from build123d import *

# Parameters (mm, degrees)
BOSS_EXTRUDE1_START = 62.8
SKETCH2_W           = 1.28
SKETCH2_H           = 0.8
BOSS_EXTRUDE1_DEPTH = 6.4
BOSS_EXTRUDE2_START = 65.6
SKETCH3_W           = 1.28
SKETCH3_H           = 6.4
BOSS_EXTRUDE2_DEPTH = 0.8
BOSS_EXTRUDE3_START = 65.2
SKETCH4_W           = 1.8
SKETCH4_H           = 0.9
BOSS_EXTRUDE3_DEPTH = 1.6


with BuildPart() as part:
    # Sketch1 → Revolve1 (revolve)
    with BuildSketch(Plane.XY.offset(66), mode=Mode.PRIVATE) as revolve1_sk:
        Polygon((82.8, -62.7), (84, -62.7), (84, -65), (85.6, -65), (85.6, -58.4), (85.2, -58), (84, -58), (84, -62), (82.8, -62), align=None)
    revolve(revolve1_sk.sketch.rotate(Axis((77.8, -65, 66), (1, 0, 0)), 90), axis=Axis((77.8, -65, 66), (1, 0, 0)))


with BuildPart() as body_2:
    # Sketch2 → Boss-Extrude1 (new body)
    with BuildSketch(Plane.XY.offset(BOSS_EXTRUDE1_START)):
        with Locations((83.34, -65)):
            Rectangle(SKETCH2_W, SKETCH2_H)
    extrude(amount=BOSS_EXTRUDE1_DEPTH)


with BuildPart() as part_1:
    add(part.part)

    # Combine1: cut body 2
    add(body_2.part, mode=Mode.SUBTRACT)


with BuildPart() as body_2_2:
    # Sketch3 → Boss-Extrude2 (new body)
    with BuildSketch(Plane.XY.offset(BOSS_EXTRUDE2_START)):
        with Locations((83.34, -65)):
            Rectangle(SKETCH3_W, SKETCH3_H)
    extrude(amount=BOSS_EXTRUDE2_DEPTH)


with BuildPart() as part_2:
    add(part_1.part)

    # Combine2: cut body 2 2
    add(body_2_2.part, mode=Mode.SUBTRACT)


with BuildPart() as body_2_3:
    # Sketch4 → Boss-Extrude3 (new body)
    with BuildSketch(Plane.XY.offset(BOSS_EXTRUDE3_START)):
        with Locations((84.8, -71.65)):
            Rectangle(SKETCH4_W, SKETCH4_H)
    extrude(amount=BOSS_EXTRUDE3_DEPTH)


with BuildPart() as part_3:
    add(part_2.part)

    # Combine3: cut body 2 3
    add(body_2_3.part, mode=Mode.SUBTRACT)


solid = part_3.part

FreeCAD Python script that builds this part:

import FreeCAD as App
import Part
import Sketcher
from FreeCAD import Vector
Q = App.Units.Quantity

doc = App.newDocument("Part")
body = doc.addObject("PartDesign::Body", "Body")

# Sketch on XY plane
sketch1 = body.newObject("Sketcher::SketchObject", "Sketch")
sketch1.AttachmentSupport = (doc.getObject("XY_Plane"), [""])
sketch1.MapMode = "FlatFace"
sketch1.AttachmentOffset = App.Placement(Vector(0, 0, 66), App.Rotation())
sketch1.addGeometry([
    Part.LineSegment(Vector(82.8, -62.7, 0), Vector(84, -62.7, 0)),  # 0
    Part.LineSegment(Vector(84, -62.7, 0), Vector(84, -65, 0)),  # 1
    Part.LineSegment(Vector(84, -65, 0), Vector(85.6, -65, 0)),  # 2
    Part.LineSegment(Vector(85.6, -65, 0), Vector(85.6, -58.4, 0)),  # 3
    Part.LineSegment(Vector(85.6, -58.4, 0), Vector(85.2, -58, 0)),  # 4
    Part.LineSegment(Vector(85.2, -58, 0), Vector(84, -58, 0)),  # 5
    Part.LineSegment(Vector(84, -58, 0), Vector(84, -62, 0)),  # 6
    Part.LineSegment(Vector(84, -62, 0), Vector(82.8, -62, 0)),  # 7
    Part.LineSegment(Vector(82.8, -62, 0), Vector(82.8, -62.7, 0)),  # 8
], False)
sketch1.addGeometry(Part.LineSegment(Vector(82.8, -65, 0), Vector(85.6, -65, 0)), True)  # axis
sketch1.addConstraint([
    Sketcher.Constraint("Coincident", 0, 2, 1, 1),
    Sketcher.Constraint("Coincident", 1, 2, 2, 1),
    Sketcher.Constraint("Coincident", 2, 2, 3, 1),
    Sketcher.Constraint("Coincident", 3, 2, 4, 1),
    Sketcher.Constraint("Coincident", 4, 2, 5, 1),
    Sketcher.Constraint("Coincident", 5, 2, 6, 1),
    Sketcher.Constraint("Coincident", 6, 2, 7, 1),
    Sketcher.Constraint("Coincident", 7, 2, 8, 1),
    Sketcher.Constraint("Coincident", 8, 2, 0, 1),
    Sketcher.Constraint("Horizontal", 0),
    Sketcher.Constraint("Vertical", 1),
    Sketcher.Constraint("Horizontal", 2),
    Sketcher.Constraint("Vertical", 3),
    Sketcher.Constraint("Horizontal", 5),
    Sketcher.Constraint("Vertical", 6),
    Sketcher.Constraint("Horizontal", 7),
    Sketcher.Constraint("Vertical", 8),
    Sketcher.Constraint("Horizontal", 9),
    Sketcher.Constraint("Coincident", 9, 2, 2, 2),
    Sketcher.Constraint("Vertical", 1, 2, 5, 2),
    Sketcher.Constraint("Vertical", 8, 2, 9, 1),
    Sketcher.Constraint("Equal", 0, 5),
    Sketcher.Constraint("DistanceY", 6, 2, 6, 1, 4.0),
    Sketcher.Constraint("Angle", 4, Q("135 deg")),
    Sketcher.Constraint("DistanceX", 0, 1, 0, 2, 1.2),
    Sketcher.Constraint("DistanceX", 2, 1, 2, 2, 1.6),
    Sketcher.Constraint("DistanceY", 1, 2, 1, 1, 2.3),
    Sketcher.Constraint("DistanceY", 3, 1, 3, 2, 6.6),
    Sketcher.Constraint("DistanceX", -1, 1, 0, 2, 84.0),
    Sketcher.Constraint("DistanceY", 1, 2, -1, 1, 65.0),
])
revolution = body.newObject("PartDesign::Revolution", "Revolution")
revolution.Profile = sketch1
revolution.ReferenceAxis = (sketch1, ["Axis0"])
revolution.Angle = 360
body2 = doc.addObject("PartDesign::Body", "Body001")

# Sketch on XY plane
sketch2 = body2.newObject("Sketcher::SketchObject", "Sketch001")
sketch2.AttachmentSupport = (doc.getObject("XY_Plane001"), [""])
sketch2.MapMode = "FlatFace"
sketch2.AttachmentOffset = App.Placement(Vector(0, 0, 62.8), App.Rotation())
sketch2.addGeometry([
    Part.LineSegment(Vector(82.7, -64.6, 0), Vector(82.7, -65.4, 0)),
    Part.LineSegment(Vector(82.7, -65.4, 0), Vector(84, -65.4, 0)),
    Part.LineSegment(Vector(84, -65.4, 0), Vector(84, -64.6, 0)),
    Part.LineSegment(Vector(84, -64.6, 0), Vector(82.7, -64.6, 0)),
], False)
sketch2.addConstraint([
    Sketcher.Constraint("Coincident", 0, 2, 1, 1),
    Sketcher.Constraint("Coincident", 1, 2, 2, 1),
    Sketcher.Constraint("Coincident", 2, 2, 3, 1),
    Sketcher.Constraint("Coincident", 3, 2, 0, 1),
    Sketcher.Constraint("Vertical", 0),
    Sketcher.Constraint("Horizontal", 1),
    Sketcher.Constraint("Vertical", 2),
    Sketcher.Constraint("Horizontal", 3),
    Sketcher.Constraint("DistanceY", 0, 2, 0, 1, 0.8),
    Sketcher.Constraint("DistanceX", 1, 1, 1, 2, 1.28),
    Sketcher.Constraint("DistanceX", -1, 1, 0, 2, 82.7),
    Sketcher.Constraint("DistanceY", 0, 2, -1, 1, 65.4),
])
pad1 = body2.newObject("PartDesign::Pad", "Pad")
pad1.Profile = sketch2
pad1.Length = 6.4
doc.recompute()

boolean = body.newObject("PartDesign::Boolean", "Boolean")
boolean.Type = "Cut"
boolean.addObjects([body2])
body3 = doc.addObject("PartDesign::Body", "Body002")

# Sketch on XY plane
sketch3 = body3.newObject("Sketcher::SketchObject", "Sketch002")
sketch3.AttachmentSupport = (doc.getObject("XY_Plane002"), [""])
sketch3.MapMode = "FlatFace"
sketch3.AttachmentOffset = App.Placement(Vector(0, 0, 65.6), App.Rotation())
sketch3.addGeometry([
    Part.LineSegment(Vector(82.7, -61.8, 0), Vector(82.7, -68.2, 0)),
    Part.LineSegment(Vector(82.7, -68.2, 0), Vector(84, -68.2, 0)),
    Part.LineSegment(Vector(84, -68.2, 0), Vector(84, -61.8, 0)),
    Part.LineSegment(Vector(84, -61.8, 0), Vector(82.7, -61.8, 0)),
], False)
sketch3.addConstraint([
    Sketcher.Constraint("Coincident", 0, 2, 1, 1),
    Sketcher.Constraint("Coincident", 1, 2, 2, 1),
    Sketcher.Constraint("Coincident", 2, 2, 3, 1),
    Sketcher.Constraint("Coincident", 3, 2, 0, 1),
    Sketcher.Constraint("Vertical", 0),
    Sketcher.Constraint("Horizontal", 1),
    Sketcher.Constraint("Vertical", 2),
    Sketcher.Constraint("Horizontal", 3),
    Sketcher.Constraint("DistanceY", 0, 2, 0, 1, 6.4),
    Sketcher.Constraint("DistanceX", 1, 1, 1, 2, 1.28),
    Sketcher.Constraint("DistanceX", -1, 1, 0, 2, 82.7),
    Sketcher.Constraint("DistanceY", 0, 2, -1, 1, 68.2),
])
pad2 = body3.newObject("PartDesign::Pad", "Pad001")
pad2.Profile = sketch3
pad2.Length = 0.8
doc.recompute()

boolean2 = body.newObject("PartDesign::Boolean", "Boolean001")
boolean2.Type = "Cut"
boolean2.addObjects([body3])
body4 = doc.addObject("PartDesign::Body", "Body003")

# Sketch on XY plane
sketch4 = body4.newObject("Sketcher::SketchObject", "Sketch003")
sketch4.AttachmentSupport = (doc.getObject("XY_Plane003"), [""])
sketch4.MapMode = "FlatFace"
sketch4.AttachmentOffset = App.Placement(Vector(0, 0, 65.2), App.Rotation())
sketch4.addGeometry([
    Part.LineSegment(Vector(83.9, -71.2, 0), Vector(83.9, -72.1, 0)),
    Part.LineSegment(Vector(83.9, -72.1, 0), Vector(85.7, -72.1, 0)),
    Part.LineSegment(Vector(85.7, -72.1, 0), Vector(85.7, -71.2, 0)),
    Part.LineSegment(Vector(85.7, -71.2, 0), Vector(83.9, -71.2, 0)),
], False)
sketch4.addConstraint([
    Sketcher.Constraint("Coincident", 0, 2, 1, 1),
    Sketcher.Constraint("Coincident", 1, 2, 2, 1),
    Sketcher.Constraint("Coincident", 2, 2, 3, 1),
    Sketcher.Constraint("Coincident", 3, 2, 0, 1),
    Sketcher.Constraint("Vertical", 0),
    Sketcher.Constraint("Horizontal", 1),
    Sketcher.Constraint("Vertical", 2),
    Sketcher.Constraint("Horizontal", 3),
    Sketcher.Constraint("DistanceX", 1, 1, 1, 2, 1.8),
    Sketcher.Constraint("DistanceY", 0, 2, 0, 1, 0.9),
    Sketcher.Constraint("DistanceX", -1, 1, 0, 2, 83.9),
    Sketcher.Constraint("DistanceY", 0, 2, -1, 1, 72.1),
])
pad3 = body4.newObject("PartDesign::Pad", "Pad002")
pad3.Profile = sketch4
pad3.Length = 1.6
doc.recompute()

boolean3 = body.newObject("PartDesign::Boolean", "Boolean002")
boolean3.Type = "Cut"
boolean3.addObjects([body4])

doc.recompute()
